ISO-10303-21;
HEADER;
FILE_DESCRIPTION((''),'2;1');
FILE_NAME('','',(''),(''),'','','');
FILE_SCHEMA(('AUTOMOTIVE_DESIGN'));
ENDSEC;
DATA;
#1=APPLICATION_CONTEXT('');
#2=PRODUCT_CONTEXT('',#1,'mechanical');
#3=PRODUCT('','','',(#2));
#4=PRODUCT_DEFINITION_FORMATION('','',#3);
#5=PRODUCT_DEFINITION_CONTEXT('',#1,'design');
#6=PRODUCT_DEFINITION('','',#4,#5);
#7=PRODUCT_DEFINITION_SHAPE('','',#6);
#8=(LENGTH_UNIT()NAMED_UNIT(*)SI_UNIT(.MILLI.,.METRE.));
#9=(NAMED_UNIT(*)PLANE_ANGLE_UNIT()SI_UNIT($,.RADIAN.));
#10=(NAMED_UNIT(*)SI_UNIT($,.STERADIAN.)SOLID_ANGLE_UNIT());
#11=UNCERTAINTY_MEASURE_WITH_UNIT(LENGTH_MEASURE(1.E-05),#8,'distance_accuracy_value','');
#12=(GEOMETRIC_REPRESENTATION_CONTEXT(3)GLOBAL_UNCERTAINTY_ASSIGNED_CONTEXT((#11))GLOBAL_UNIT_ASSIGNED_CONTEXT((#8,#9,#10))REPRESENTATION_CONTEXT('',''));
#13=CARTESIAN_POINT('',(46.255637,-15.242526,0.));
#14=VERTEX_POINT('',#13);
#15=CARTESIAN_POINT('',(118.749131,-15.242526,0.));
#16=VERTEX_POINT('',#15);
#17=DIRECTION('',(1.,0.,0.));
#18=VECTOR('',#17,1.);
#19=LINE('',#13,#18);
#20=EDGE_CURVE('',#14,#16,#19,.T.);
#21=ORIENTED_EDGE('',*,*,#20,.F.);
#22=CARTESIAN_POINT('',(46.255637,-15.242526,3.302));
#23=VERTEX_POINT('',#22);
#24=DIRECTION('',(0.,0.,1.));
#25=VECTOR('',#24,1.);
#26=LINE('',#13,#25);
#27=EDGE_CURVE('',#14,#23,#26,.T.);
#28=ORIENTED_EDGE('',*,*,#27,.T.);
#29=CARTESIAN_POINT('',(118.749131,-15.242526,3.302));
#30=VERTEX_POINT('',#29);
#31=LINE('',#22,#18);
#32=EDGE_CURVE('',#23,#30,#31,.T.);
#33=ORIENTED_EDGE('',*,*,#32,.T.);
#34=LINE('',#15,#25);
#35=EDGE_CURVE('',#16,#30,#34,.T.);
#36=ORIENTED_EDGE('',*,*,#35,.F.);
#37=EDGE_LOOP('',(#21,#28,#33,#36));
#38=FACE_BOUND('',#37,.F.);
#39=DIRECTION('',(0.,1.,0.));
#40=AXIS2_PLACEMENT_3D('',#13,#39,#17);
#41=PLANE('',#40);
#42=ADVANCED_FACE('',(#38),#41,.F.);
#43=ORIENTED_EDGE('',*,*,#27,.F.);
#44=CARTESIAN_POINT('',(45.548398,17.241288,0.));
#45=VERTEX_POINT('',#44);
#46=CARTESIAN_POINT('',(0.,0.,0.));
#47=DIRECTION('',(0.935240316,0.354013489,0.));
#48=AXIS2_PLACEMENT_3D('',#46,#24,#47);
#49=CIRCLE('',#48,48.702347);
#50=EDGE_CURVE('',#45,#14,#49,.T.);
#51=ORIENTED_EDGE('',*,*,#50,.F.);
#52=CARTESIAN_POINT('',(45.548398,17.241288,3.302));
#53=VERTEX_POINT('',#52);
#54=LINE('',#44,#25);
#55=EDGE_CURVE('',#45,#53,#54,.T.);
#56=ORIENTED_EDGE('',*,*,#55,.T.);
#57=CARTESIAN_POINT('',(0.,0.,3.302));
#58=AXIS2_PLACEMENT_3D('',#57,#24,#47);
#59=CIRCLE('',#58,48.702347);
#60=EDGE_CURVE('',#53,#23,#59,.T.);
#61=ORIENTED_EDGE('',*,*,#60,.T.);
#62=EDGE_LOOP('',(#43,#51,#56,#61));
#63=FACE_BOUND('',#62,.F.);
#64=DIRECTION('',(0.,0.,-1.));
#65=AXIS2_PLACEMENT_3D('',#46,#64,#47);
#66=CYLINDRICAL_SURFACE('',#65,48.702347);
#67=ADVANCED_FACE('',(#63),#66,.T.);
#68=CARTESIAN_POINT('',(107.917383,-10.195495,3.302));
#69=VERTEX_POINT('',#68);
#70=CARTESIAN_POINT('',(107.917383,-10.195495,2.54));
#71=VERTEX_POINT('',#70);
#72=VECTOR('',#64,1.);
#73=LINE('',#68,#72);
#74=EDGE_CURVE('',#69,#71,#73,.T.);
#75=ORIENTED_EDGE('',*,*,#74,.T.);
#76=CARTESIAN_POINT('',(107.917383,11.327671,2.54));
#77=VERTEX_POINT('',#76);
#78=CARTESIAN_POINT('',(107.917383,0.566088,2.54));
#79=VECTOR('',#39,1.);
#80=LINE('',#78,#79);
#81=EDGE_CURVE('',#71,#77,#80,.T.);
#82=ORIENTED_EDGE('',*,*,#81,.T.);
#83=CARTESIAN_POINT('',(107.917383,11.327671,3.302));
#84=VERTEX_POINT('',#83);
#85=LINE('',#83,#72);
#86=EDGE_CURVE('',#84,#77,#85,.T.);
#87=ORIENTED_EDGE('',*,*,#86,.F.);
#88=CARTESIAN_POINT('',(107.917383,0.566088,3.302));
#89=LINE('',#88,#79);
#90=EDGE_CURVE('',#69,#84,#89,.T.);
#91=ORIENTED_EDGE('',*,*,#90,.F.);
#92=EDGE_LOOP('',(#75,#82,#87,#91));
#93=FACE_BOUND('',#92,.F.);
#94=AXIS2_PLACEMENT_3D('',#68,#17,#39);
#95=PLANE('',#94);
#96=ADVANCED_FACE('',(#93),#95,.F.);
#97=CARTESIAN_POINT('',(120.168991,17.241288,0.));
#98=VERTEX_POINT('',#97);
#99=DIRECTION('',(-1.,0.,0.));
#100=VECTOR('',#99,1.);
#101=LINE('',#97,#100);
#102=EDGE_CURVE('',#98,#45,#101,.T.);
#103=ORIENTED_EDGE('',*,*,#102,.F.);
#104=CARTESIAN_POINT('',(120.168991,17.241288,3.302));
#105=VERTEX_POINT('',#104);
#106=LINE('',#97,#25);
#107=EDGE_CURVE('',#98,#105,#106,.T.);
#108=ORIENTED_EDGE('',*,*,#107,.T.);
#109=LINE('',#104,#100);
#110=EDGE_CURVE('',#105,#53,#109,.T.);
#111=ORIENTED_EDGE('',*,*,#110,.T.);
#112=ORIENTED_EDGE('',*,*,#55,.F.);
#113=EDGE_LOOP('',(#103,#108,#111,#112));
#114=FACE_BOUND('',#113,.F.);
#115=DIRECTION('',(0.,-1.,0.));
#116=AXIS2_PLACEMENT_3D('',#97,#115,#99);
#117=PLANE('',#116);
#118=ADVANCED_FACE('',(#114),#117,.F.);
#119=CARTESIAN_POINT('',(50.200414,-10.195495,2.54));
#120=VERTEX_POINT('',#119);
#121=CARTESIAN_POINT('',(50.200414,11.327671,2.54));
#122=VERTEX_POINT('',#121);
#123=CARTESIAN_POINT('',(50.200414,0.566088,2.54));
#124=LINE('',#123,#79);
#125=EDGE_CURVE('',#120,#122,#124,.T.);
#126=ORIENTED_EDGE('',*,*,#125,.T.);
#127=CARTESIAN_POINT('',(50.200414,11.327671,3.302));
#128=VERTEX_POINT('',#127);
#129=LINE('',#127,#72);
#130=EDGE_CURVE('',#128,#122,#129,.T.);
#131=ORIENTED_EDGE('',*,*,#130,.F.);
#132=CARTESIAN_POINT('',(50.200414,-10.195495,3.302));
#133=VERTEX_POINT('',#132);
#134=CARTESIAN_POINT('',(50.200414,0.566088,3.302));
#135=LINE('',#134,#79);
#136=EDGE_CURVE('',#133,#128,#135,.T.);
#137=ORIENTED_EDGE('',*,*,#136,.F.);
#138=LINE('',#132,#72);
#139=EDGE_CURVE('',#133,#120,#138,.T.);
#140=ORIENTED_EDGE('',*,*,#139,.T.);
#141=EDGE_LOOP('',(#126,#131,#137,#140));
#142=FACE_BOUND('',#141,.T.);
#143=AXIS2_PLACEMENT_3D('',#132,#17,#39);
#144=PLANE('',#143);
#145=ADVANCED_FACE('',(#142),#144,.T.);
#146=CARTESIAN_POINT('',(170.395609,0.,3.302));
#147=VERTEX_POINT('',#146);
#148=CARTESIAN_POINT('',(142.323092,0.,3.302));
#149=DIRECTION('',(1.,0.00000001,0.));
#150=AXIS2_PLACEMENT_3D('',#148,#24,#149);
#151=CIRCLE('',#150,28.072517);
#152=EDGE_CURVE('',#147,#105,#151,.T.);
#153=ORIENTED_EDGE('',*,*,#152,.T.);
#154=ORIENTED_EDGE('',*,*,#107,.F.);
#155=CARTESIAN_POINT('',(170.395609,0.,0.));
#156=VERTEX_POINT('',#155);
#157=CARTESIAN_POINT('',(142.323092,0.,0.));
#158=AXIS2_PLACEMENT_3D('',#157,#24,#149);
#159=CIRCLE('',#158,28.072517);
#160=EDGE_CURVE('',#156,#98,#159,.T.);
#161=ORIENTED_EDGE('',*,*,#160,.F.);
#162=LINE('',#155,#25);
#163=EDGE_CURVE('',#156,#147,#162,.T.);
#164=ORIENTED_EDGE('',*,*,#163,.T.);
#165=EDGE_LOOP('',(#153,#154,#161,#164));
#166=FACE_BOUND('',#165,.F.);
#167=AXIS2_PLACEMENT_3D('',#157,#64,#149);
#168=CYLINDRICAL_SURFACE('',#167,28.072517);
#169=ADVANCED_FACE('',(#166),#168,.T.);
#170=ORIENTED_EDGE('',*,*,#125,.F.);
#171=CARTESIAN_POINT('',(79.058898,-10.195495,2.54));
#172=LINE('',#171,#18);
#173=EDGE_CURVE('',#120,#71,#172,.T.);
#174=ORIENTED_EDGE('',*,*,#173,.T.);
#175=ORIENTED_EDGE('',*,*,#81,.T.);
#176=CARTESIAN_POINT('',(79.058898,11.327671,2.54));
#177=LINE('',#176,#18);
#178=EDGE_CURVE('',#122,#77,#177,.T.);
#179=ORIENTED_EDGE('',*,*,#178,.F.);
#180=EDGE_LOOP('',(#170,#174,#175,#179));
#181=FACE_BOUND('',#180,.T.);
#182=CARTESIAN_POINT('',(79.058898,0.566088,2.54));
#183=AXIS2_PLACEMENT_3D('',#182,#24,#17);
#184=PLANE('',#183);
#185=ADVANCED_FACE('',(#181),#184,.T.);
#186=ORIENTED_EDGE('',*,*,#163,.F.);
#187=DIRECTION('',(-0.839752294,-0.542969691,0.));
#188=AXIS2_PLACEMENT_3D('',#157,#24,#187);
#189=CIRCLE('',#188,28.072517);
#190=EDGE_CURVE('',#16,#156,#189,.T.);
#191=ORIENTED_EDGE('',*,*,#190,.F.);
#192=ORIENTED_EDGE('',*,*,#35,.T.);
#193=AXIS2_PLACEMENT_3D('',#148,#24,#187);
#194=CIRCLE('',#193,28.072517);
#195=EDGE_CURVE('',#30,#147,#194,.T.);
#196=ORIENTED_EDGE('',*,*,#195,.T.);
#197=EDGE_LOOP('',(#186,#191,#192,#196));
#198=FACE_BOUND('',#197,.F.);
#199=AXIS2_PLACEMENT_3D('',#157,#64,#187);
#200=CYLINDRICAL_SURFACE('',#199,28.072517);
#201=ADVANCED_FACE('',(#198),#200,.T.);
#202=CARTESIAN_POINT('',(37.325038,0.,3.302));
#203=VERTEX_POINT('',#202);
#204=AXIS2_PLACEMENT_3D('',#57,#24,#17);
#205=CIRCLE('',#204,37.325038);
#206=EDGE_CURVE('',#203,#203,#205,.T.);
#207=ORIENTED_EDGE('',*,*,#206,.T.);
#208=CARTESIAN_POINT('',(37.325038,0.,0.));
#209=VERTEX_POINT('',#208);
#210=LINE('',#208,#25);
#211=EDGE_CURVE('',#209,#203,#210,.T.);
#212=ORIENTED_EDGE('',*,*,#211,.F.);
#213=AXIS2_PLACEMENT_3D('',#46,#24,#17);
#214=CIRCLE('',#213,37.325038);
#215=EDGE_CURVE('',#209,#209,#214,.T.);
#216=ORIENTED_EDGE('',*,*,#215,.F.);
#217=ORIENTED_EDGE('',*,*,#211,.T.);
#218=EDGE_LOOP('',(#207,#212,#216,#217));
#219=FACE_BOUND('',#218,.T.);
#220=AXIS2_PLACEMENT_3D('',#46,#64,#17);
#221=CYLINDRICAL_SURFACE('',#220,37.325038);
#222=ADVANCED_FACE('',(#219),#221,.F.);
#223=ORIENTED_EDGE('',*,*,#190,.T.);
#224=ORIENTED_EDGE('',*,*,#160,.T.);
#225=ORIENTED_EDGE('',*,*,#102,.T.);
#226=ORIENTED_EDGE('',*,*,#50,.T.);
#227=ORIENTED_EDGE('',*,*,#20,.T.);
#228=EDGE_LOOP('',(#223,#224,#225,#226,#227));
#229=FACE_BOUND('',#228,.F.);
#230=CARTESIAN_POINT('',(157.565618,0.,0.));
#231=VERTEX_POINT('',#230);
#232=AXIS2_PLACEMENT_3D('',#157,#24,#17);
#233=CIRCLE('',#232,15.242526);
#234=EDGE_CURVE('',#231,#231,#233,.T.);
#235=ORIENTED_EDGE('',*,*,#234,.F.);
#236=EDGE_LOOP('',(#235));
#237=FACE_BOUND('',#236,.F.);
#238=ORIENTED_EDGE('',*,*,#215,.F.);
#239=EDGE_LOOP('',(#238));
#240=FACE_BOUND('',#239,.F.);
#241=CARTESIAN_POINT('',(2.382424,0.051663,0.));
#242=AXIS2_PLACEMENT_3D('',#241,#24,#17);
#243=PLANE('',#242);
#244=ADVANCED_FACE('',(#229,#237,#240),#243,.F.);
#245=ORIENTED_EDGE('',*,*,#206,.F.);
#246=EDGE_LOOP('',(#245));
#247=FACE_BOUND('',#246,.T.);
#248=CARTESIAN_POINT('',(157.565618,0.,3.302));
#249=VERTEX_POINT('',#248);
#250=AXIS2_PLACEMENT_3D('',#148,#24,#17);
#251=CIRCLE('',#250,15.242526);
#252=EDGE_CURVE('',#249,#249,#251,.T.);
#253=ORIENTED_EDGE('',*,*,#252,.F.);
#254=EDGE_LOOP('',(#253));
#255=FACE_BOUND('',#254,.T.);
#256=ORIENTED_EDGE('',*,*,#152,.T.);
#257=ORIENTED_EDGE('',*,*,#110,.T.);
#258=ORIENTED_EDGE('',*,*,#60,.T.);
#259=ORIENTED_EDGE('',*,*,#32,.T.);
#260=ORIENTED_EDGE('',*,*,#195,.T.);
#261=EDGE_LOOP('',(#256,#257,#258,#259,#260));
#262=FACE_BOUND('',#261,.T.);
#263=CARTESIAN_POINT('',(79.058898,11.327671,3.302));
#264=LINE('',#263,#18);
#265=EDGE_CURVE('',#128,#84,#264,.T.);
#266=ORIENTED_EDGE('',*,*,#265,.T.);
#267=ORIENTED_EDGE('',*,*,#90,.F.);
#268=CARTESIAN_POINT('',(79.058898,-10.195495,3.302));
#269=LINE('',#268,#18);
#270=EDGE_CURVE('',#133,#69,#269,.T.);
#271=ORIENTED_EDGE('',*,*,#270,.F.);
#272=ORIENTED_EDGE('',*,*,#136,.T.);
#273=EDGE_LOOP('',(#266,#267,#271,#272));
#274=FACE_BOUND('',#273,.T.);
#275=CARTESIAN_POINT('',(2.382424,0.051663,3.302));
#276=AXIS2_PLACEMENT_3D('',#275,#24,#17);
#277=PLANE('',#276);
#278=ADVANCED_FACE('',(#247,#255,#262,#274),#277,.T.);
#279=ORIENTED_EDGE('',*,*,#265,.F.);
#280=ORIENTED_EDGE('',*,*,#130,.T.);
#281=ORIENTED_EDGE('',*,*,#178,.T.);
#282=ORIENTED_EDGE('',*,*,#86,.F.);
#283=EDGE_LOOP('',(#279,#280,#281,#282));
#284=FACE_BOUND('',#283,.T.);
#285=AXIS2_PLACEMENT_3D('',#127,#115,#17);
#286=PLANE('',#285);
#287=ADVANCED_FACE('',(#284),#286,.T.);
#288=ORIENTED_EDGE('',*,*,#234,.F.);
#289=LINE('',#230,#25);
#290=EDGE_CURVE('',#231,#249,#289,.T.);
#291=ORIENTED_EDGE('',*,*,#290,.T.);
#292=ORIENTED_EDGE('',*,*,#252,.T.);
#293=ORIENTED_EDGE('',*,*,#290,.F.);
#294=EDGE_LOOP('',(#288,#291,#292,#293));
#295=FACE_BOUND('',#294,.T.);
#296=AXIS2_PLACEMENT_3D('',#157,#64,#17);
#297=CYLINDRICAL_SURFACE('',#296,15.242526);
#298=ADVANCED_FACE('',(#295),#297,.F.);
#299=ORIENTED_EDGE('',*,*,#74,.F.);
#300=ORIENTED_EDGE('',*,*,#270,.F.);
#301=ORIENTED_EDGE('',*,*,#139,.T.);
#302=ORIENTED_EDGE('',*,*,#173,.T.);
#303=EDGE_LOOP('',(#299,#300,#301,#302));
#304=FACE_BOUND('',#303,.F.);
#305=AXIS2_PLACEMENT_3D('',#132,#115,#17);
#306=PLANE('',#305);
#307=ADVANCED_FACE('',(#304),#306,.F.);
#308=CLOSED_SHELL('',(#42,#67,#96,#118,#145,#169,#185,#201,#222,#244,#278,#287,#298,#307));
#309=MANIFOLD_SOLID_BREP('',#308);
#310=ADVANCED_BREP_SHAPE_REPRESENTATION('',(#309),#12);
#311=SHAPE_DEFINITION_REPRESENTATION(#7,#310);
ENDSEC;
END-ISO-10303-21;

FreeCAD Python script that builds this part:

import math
import FreeCAD as App
import Part
import Sketcher
from FreeCAD import Vector
Q = App.Units.Quantity

doc = App.newDocument("Part")
body = doc.addObject("PartDesign::Body", "Body")

# Sketch on XY plane
sketch1 = body.newObject("Sketcher::SketchObject", "Sketch")
sketch1.AttachmentSupport = (doc.getObject("XY_Plane"), [""])
sketch1.MapMode = "FlatFace"
sketch1.addGeometry(Part.ArcOfCircle(Part.Circle(Vector(0, 0, 0), Vector(0, 0, 1), 49), math.radians(21), math.radians(342)), False)
sketch1.addGeometry(Part.LineSegment(Vector(46, -15, 0), Vector(119, -15, 0)), False)
sketch1.addGeometry(Part.ArcOfCircle(Part.Circle(Vector(142, 0, 0), Vector(0, 0, 1), 28), math.radians(-147), math.radians(0)), False)
sketch1.addGeometry(Part.ArcOfCircle(Part.Circle(Vector(142, 0, 0), Vector(0, 0, 1), 28), math.radians(0), math.radians(142)), False)
sketch1.addGeometry(Part.LineSegment(Vector(120, 17, 0), Vector(46, 17, 0)), False)
sketch1.addGeometry(Part.Circle(Vector(0, 0, 0), Vector(0, 0, 1), 37), False)
sketch1.addGeometry(Part.Circle(Vector(142, 0, 0), Vector(0, 0, 1), 15), False)
sketch1.addConstraint(Sketcher.Constraint("Coincident", 0, 2, 1, 1))
sketch1.addConstraint(Sketcher.Constraint("Coincident", 1, 2, 2, 1))
sketch1.addConstraint(Sketcher.Constraint("Tangent", 2, 2, 3, 1))
sketch1.addConstraint(Sketcher.Constraint("Coincident", 3, 2, 4, 1))
sketch1.addConstraint(Sketcher.Constraint("Coincident", 4, 2, 0, 1))
sketch1.addConstraint(Sketcher.Constraint("Horizontal", 1))
sketch1.addConstraint(Sketcher.Constraint("Horizontal", 4))
sketch1.addConstraint(Sketcher.Constraint("Coincident", 0, 3, -1, 1))
sketch1.addConstraint(Sketcher.Constraint("Coincident", 5, 3, -1, 1))
sketch1.addConstraint(Sketcher.Constraint("Coincident", 6, 3, 2, 3))
sketch1.addConstraint(Sketcher.Constraint("Equal", 2, 3))
sketch1.addConstraint(Sketcher.Constraint("PointOnObject", 2, 3, -1))
sketch1.addConstraint(Sketcher.Constraint("PointOnObject", 2, 2, -1))
sketch1.addConstraint(Sketcher.Constraint("Diameter", 6, 30.485052))
sketch1.addConstraint(Sketcher.Constraint("Diameter", 5, 74.650076))
sketch1.addConstraint(Sketcher.Constraint("Radius", 0, 48.702347))
sketch1.addConstraint(Sketcher.Constraint("Radius", 2, 28.072517))
sketch1.addConstraint(Sketcher.Constraint("DistanceX", 1, 2, 3, 2, Q("0.0559 in")))
sketch1.addConstraint(Sketcher.Constraint("DistanceX", 3, 2, 2, 3, 22.154101))
sketch1.addConstraint(Sketcher.Constraint("DistanceX", 1, 1, 1, 2, 72.493494))
pad1 = body.newObject("PartDesign::Pad", "Pad")
pad1.Profile = sketch1
pad1.Length = Q("0.13 in")

# Sketch on XY plane
sketch2 = body.newObject("Sketcher::SketchObject", "Sketch001")
sketch2.AttachmentSupport = (doc.getObject("XY_Plane"), [""])
sketch2.MapMode = "FlatFace"
sketch2.AttachmentOffset = App.Placement(Vector(0, 0, 0.13 * 25.4), App.Rotation())
sketch2.addGeometry(Part.LineSegment(Vector(50, 11, 0), Vector(50, -10, 0)), False)
sketch2.addGeometry(Part.LineSegment(Vector(50, -10, 0), Vector(108, -10, 0)), False)
sketch2.addGeometry(Part.LineSegment(Vector(108, -10, 0), Vector(108, 11, 0)), False)
sketch2.addGeometry(Part.LineSegment(Vector(108, 11, 0), Vector(50, 11, 0)), False)
sketch2.addConstraint(Sketcher.Constraint("Coincident", 0, 2, 1, 1))
sketch2.addConstraint(Sketcher.Constraint("Coincident", 1, 2, 2, 1))
sketch2.addConstraint(Sketcher.Constraint("Coincident", 2, 2, 3, 1))
sketch2.addConstraint(Sketcher.Constraint("Coincident", 3, 2, 0, 1))
sketch2.addConstraint(Sketcher.Constraint("Vertical", 0))
sketch2.addConstraint(Sketcher.Constraint("Horizontal", 1))
sketch2.addConstraint(Sketcher.Constraint("Vertical", 2))
sketch2.addConstraint(Sketcher.Constraint("Horizontal", 3))
sketch2.addConstraint(Sketcher.Constraint("DistanceX", 1, 1, 1, 2, 57.716969))
sketch2.addConstraint(Sketcher.Constraint("DistanceY", 0, 2, 0, 1, 21.523166))
sketch2.addConstraint(Sketcher.Constraint("DistanceY", -1, 1, 2, 2, 11.327671))
sketch2.addConstraint(Sketcher.Constraint("DistanceX", -1, 1, 0, 2, 50.200414))
pocket1 = body.newObject("PartDesign::Pocket", "Pocket")
pocket1.Profile = sketch2
pocket1.Length = Q("0.03 in")

doc.recompute()
